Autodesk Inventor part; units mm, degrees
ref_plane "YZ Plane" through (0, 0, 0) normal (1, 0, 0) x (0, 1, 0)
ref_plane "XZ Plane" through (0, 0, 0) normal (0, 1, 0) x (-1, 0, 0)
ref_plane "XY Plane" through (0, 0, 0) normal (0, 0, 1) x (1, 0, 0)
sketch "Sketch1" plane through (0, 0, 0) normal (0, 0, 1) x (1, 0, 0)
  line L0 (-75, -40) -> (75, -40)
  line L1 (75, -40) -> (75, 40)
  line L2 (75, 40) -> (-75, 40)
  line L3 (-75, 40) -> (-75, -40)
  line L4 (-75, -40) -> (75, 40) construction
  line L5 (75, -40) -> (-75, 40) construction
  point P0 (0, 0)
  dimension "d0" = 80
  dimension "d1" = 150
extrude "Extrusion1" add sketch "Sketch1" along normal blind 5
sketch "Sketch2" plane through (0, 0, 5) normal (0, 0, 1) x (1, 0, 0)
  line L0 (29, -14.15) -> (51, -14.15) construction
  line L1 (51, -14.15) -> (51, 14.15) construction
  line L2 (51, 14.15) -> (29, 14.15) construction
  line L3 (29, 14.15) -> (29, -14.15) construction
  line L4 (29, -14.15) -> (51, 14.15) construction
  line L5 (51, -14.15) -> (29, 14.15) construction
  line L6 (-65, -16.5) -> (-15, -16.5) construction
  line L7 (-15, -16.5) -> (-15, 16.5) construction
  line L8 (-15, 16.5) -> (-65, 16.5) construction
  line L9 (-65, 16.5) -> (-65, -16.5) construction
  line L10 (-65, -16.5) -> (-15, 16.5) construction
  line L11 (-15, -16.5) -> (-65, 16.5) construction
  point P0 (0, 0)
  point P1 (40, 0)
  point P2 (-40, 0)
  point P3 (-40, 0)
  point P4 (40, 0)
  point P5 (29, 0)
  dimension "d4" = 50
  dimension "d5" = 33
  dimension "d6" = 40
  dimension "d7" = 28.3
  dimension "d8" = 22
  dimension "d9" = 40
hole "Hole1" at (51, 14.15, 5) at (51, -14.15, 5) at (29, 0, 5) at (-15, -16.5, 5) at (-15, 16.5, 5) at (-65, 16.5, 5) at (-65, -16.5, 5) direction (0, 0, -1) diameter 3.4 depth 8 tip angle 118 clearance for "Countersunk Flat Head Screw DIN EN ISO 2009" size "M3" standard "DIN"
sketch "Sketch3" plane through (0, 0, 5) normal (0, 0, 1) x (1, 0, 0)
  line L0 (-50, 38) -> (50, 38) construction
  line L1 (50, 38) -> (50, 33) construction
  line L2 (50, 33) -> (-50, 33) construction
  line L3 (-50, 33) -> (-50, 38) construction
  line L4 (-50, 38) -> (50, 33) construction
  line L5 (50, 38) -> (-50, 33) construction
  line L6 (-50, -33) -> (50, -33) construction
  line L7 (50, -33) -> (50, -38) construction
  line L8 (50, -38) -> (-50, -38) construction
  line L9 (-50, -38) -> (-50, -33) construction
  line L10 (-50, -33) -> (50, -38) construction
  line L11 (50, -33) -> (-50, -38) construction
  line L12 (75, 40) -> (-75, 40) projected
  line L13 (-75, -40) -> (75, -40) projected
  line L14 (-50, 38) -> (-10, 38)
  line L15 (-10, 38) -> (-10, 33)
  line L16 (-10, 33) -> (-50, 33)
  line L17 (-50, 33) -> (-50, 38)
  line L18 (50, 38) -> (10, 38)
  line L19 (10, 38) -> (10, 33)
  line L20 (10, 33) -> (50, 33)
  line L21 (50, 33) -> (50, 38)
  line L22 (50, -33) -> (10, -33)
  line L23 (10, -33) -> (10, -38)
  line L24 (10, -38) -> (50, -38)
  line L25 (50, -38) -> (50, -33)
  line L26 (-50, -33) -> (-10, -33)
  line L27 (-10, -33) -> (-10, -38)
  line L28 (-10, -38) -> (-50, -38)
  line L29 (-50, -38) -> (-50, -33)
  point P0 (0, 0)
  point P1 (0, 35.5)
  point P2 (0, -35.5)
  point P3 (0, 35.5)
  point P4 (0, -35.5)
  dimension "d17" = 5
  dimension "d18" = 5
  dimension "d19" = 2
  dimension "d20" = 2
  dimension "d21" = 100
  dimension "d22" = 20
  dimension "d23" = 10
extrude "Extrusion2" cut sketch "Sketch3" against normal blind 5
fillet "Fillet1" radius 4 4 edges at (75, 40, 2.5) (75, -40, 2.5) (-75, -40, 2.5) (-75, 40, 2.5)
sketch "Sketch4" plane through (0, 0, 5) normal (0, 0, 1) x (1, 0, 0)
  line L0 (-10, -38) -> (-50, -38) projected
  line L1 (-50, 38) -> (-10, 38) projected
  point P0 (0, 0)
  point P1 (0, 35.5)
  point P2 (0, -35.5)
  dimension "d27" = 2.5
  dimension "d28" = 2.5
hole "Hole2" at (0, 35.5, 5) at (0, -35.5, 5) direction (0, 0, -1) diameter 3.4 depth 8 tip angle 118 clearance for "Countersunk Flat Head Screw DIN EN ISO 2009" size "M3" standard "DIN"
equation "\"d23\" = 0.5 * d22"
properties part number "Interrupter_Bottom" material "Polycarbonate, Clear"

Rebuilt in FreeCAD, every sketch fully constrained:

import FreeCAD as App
import Part
import Sketcher
from FreeCAD import Vector
Q = App.Units.Quantity


def edges_at(feature, points):
    """Names of the edges that pass closest to the given points."""
    edges = feature.Shape.Edges
    near = lambda p: min(range(len(edges)), key=lambda i: edges[i].distToShape(Part.Vertex(*p))[0])
    return sorted({f"Edge{near(p) + 1}" for p in points})

doc = App.newDocument("Part")
params = doc.addObject("Spreadsheet::Sheet", "Params")
for row, (alias, value) in enumerate([
    ("sketch1_width", "150 mm"),
    ("sketch1_height", "80 mm"),
    ("pad1_length", "5 mm"),
    ("sketch2_diameter", "3.4 mm"),
    ("hole_diameter", "3.4 mm"),
    ("hole_depth", "8 mm"),
    ("sketch3_height", "5 mm"),
    ("pocket1_length", "5 mm"),
    ("fillet_radius", "4 mm"),
    ("sketch4_diameter", "3.4 mm"),
    ("hole2_diameter", "3.4 mm"),
    ("hole2_depth", "8 mm"),
], start=1):
    params.set(f"A{row}", alias)
    params.set(f"B{row}", "=" + value)
    params.setAlias(f"B{row}", alias)

body = doc.addObject("PartDesign::Body", "Body")

sketch1 = doc.addObject("Sketcher::SketchObject", "Sketch")
body.addObject(sketch1)
sketch1.AttachmentSupport = (doc.XY_Plane, [""])
sketch1.MapMode = "FlatFace"
sketch1.addGeometry(Part.LineSegment(Vector(-75, 40, 0), Vector(-75, -40, 0)), False)
sketch1.addGeometry(Part.LineSegment(Vector(-75, -40, 0), Vector(75, -40, 0)), False)
sketch1.addGeometry(Part.LineSegment(Vector(75, -40, 0), Vector(75, 40, 0)), False)
sketch1.addGeometry(Part.LineSegment(Vector(75, 40, 0), Vector(-75, 40, 0)), False)
sketch1.addConstraint(Sketcher.Constraint("Coincident", 0, 2, 1, 1))
sketch1.addConstraint(Sketcher.Constraint("Coincident", 1, 2, 2, 1))
sketch1.addConstraint(Sketcher.Constraint("Coincident", 2, 2, 3, 1))
sketch1.addConstraint(Sketcher.Constraint("Coincident", 3, 2, 0, 1))
sketch1.addConstraint(Sketcher.Constraint("Vertical", 0))
sketch1.addConstraint(Sketcher.Constraint("Horizontal", 1))
sketch1.addConstraint(Sketcher.Constraint("Vertical", 2))
sketch1.addConstraint(Sketcher.Constraint("Horizontal", 3))
sketch1.addConstraint(Sketcher.Constraint("Symmetric", 0, 2, 2, 2, -1, 1))
sketch1.addConstraint(Sketcher.Constraint("DistanceX", 1, 1, 1, 2, Q("150 mm")))
sketch1.addConstraint(Sketcher.Constraint("DistanceY", 0, 2, 0, 1, Q("80 mm")))
sketch1.setExpression("Constraints[9]", "Params.sketch1_width")
sketch1.setExpression("Constraints[10]", "Params.sketch1_height")
pad1 = doc.addObject("PartDesign::Pad", "Pad")
body.addObject(pad1)
pad1.Profile = sketch1
pad1.setExpression("Length", "Params.pad1_length")

sketch2 = doc.addObject("Sketcher::SketchObject", "Sketch001")
body.addObject(sketch2)
sketch2.AttachmentSupport = (doc.XY_Plane, [""])
sketch2.MapMode = "FlatFace"
sketch2.AttachmentOffset = App.Placement(Vector(0, 0, 5), App.Rotation())
sketch2.addGeometry(Part.Circle(Vector(51, 14.15, 0), Vector(0, 0, 1), 1.7), False)
sketch2.addGeometry(Part.Circle(Vector(51, -14.15, 0), Vector(0, 0, 1), 1.7), False)
sketch2.addGeometry(Part.Circle(Vector(29, 0, 0), Vector(0, 0, 1), 1.7), False)
sketch2.addGeometry(Part.Circle(Vector(-15, -16.5, 0), Vector(0, 0, 1), 1.7), False)
sketch2.addGeometry(Part.Circle(Vector(-15, 16.5, 0), Vector(0, 0, 1), 1.7), False)
sketch2.addGeometry(Part.Circle(Vector(-65, 16.5, 0), Vector(0, 0, 1), 1.7), False)
sketch2.addGeometry(Part.Circle(Vector(-65, -16.5, 0), Vector(0, 0, 1), 1.7), False)
sketch2.addConstraint(Sketcher.Constraint("Equal", 0, 1))
sketch2.addConstraint(Sketcher.Constraint("Equal", 1, 2))
sketch2.addConstraint(Sketcher.Constraint("Equal", 2, 3))
sketch2.addConstraint(Sketcher.Constraint("Equal", 3, 4))
sketch2.addConstraint(Sketcher.Constraint("Equal", 4, 5))
sketch2.addConstraint(Sketcher.Constraint("Equal", 5, 6))
sketch2.addConstraint(Sketcher.Constraint("Symmetric", 0, 3, 1, 3, -1))
sketch2.addConstraint(Sketcher.Constraint("Symmetric", 3, 3, 4, 3, -1))
sketch2.addConstraint(Sketcher.Constraint("Symmetric", 5, 3, 6, 3, -1))
sketch2.addConstraint(Sketcher.Constraint("PointOnObject", 2, 3, -1))
sketch2.addConstraint(Sketcher.Constraint("Horizontal", 4, 3, 5, 3))
sketch2.addConstraint(Sketcher.Constraint("Diameter", 0, Q("3.4 mm")))
sketch2.addConstraint(Sketcher.Constraint("DistanceX", -1, 1, 0, 3, Q("51 mm")))
sketch2.addConstraint(Sketcher.Constraint("DistanceX", -1, 1, 2, 3, Q("29 mm")))
sketch2.addConstraint(Sketcher.Constraint("DistanceX", 3, 3, -1, 1, Q("15 mm")))
sketch2.addConstraint(Sketcher.Constraint("DistanceX", 5, 3, -1, 1, Q("65 mm")))
sketch2.addConstraint(Sketcher.Constraint("DistanceY", 3, 3, 4, 3, Q("33 mm")))
sketch2.addConstraint(Sketcher.Constraint("DistanceY", 1, 3, 0, 3, Q("28.3 mm")))
sketch2.setExpression("Constraints[11]", "Params.sketch2_diameter")
doc.recompute()
hole = doc.addObject("PartDesign::Hole", "Hole")
body.addObject(hole)
hole.Profile = sketch2
hole.ThreadType = "None"
hole.setExpression("Diameter", "Params.hole_diameter")
hole.DepthType = "Dimension"
hole.setExpression("Depth", "Params.hole_depth")
hole.DrillPoint = "Angled"
hole.DrillPointAngle = 118

sketch3 = doc.addObject("Sketcher::SketchObject", "Sketch002")
body.addObject(sketch3)
sketch3.AttachmentSupport = (doc.XY_Plane, [""])
sketch3.MapMode = "FlatFace"
sketch3.AttachmentOffset = App.Placement(Vector(0, 0, 5), App.Rotation())
sketch3.addGeometry(Part.LineSegment(Vector(-10, 38, 0), Vector(-50, 38, 0)), False)
sketch3.addGeometry(Part.LineSegment(Vector(-50, 38, 0), Vector(-50, 33, 0)), False)
sketch3.addGeometry(Part.LineSegment(Vector(-50, 33, 0), Vector(-10, 33, 0)), False)
sketch3.addGeometry(Part.LineSegment(Vector(-10, 33, 0), Vector(-10, 38, 0)), False)
sketch3.addGeometry(Part.LineSegment(Vector(50, 33, 0), Vector(50, 38, 0)), False)
sketch3.addGeometry(Part.LineSegment(Vector(50, 38, 0), Vector(10, 38, 0)), False)
sketch3.addGeometry(Part.LineSegment(Vector(10, 38, 0), Vector(10, 33, 0)), False)
sketch3.addGeometry(Part.LineSegment(Vector(10, 33, 0), Vector(50, 33, 0)), False)
sketch3.addGeometry(Part.LineSegment(Vector(50, -38, 0), Vector(50, -33, 0)), False)
sketch3.addGeometry(Part.LineSegment(Vector(50, -33, 0), Vector(10, -33, 0)), False)
sketch3.addGeometry(Part.LineSegment(Vector(10, -33, 0), Vector(10, -38, 0)), False)
sketch3.addGeometry(Part.LineSegment(Vector(10, -38, 0), Vector(50, -38, 0)), False)
sketch3.addGeometry(Part.LineSegment(Vector(-10, -33, 0), Vector(-50, -33, 0)), False)
sketch3.addGeometry(Part.LineSegment(Vector(-50, -33, 0), Vector(-50, -38, 0)), False)
sketch3.addGeometry(Part.LineSegment(Vector(-50, -38, 0), Vector(-10, -38, 0)), False)
sketch3.addGeometry(Part.LineSegment(Vector(-10, -38, 0), Vector(-10, -33, 0)), False)
sketch3.addConstraint(Sketcher.Constraint("Coincident", 0, 2, 1, 1))
sketch3.addConstraint(Sketcher.Constraint("Coincident", 1, 2, 2, 1))
sketch3.addConstraint(Sketcher.Constraint("Coincident", 2, 2, 3, 1))
sketch3.addConstraint(Sketcher.Constraint("Coincident", 3, 2, 0, 1))
sketch3.addConstraint(Sketcher.Constraint("Coincident", 4, 2, 5, 1))
sketch3.addConstraint(Sketcher.Constraint("Coincident", 5, 2, 6, 1))
sketch3.addConstraint(Sketcher.Constraint("Coincident", 6, 2, 7, 1))
sketch3.addConstraint(Sketcher.Constraint("Coincident", 7, 2, 4, 1))
sketch3.addConstraint(Sketcher.Constraint("Coincident", 8, 2, 9, 1))
sketch3.addConstraint(Sketcher.Constraint("Coincident", 9, 2, 10, 1))
sketch3.addConstraint(Sketcher.Constraint("Coincident", 10, 2, 11, 1))
sketch3.addConstraint(Sketcher.Constraint("Coincident", 11, 2, 8, 1))
sketch3.addConstraint(Sketcher.Constraint("Coincident", 12, 2, 13, 1))
sketch3.addConstraint(Sketcher.Constraint("Coincident", 13, 2, 14, 1))
sketch3.addConstraint(Sketcher.Constraint("Coincident", 14, 2, 15, 1))
sketch3.addConstraint(Sketcher.Constraint("Coincident", 15, 2, 12, 1))
sketch3.addConstraint(Sketcher.Constraint("Horizontal", 0))
sketch3.addConstraint(Sketcher.Constraint("Vertical", 1))
sketch3.addConstraint(Sketcher.Constraint("Horizontal", 2))
sketch3.addConstraint(Sketcher.Constraint("Vertical", 3))
sketch3.addConstraint(Sketcher.Constraint("Vertical", 4))
sketch3.addConstraint(Sketcher.Constraint("Horizontal", 5))
sketch3.addConstraint(Sketcher.Constraint("Vertical", 6))
sketch3.addConstraint(Sketcher.Constraint("Horizontal", 7))
sketch3.addConstraint(Sketcher.Constraint("Vertical", 8))
sketch3.addConstraint(Sketcher.Constraint("Horizontal", 9))
sketch3.addConstraint(Sketcher.Constraint("Vertical", 10))
sketch3.addConstraint(Sketcher.Constraint("Horizontal", 11))
sketch3.addConstraint(Sketcher.Constraint("Horizontal", 12))
sketch3.addConstraint(Sketcher.Constraint("Vertical", 13))
sketch3.addConstraint(Sketcher.Constraint("Horizontal", 14))
sketch3.addConstraint(Sketcher.Constraint("Vertical", 15))
sketch3.addConstraint(Sketcher.Constraint("Symmetric", 1, 2, 8, 2, -1, 1))
sketch3.addConstraint(Sketcher.Constraint("Symmetric", 3, 2, 10, 2, -1, 1))
sketch3.addConstraint(Sketcher.Constraint("Symmetric", 7, 2, 12, 2, -1, 1))
sketch3.addConstraint(Sketcher.Constraint("Symmetric", 5, 2, 14, 2, -1, 1))
sketch3.addConstraint(Sketcher.Constraint("Symmetric", 0, 2, 4, 2, -2))
sketch3.addConstraint(Sketcher.Constraint("Symmetric", 2, 2, 6, 2, -2))
sketch3.addConstraint(Sketcher.Constraint("DistanceY", 1, 2, 1, 1, Q("5 mm")))
sketch3.addConstraint(Sketcher.Constraint("DistanceX", 2, 2, -1, 1, Q("10 mm")))
sketch3.addConstraint(Sketcher.Constraint("DistanceX", 0, 2, 4, 2, Q("100 mm")))
sketch3.addConstraint(Sketcher.Constraint("DistanceY", -1, 1, 0, 2, Q("38 mm")))
sketch3.setExpression("Constraints[38]", "Params.sketch3_height")
pocket1 = doc.addObject("PartDesign::Pocket", "Pocket")
body.addObject(pocket1)
pocket1.Profile = sketch3
pocket1.setExpression("Length", "Params.pocket1_length")
doc.recompute()

fillet = doc.addObject("PartDesign::Fillet", "Fillet")
body.addObject(fillet)
fillet.Base = (pocket1, edges_at(pocket1, [
    (75, 40, 2.5),
    (75, -40, 2.5),
    (-75, -40, 2.5),
    (-75, 40, 2.5),
]))
fillet.setExpression("Radius", "Params.fillet_radius")

sketch4 = doc.addObject("Sketcher::SketchObject", "Sketch003")
body.addObject(sketch4)
sketch4.AttachmentSupport = (doc.XY_Plane, [""])
sketch4.MapMode = "FlatFace"
sketch4.AttachmentOffset = App.Placement(Vector(0, 0, 5), App.Rotation())
sketch4.addGeometry(Part.Circle(Vector(0, 35.5, 0), Vector(0, 0, 1), 1.7), False)
sketch4.addGeometry(Part.Circle(Vector(0, -35.5, 0), Vector(0, 0, 1), 1.7), False)
sketch4.addConstraint(Sketcher.Constraint("Equal", 0, 1))
sketch4.addConstraint(Sketcher.Constraint("Symmetric", 0, 3, 1, 3, -1, 1))
sketch4.addConstraint(Sketcher.Constraint("PointOnObject", 0, 3, -2))
sketch4.addConstraint(Sketcher.Constraint("Diameter", 0, Q("3.4 mm")))
sketch4.addConstraint(Sketcher.Constraint("DistanceY", 1, 3, 0, 3, Q("71 mm")))
sketch4.setExpression("Constraints[3]", "Params.sketch4_diameter")
doc.recompute()
hole2 = doc.addObject("PartDesign::Hole", "Hole001")
body.addObject(hole2)
hole2.Profile = sketch4
hole2.ThreadType = "None"
hole2.setExpression("Diameter", "Params.hole2_diameter")
hole2.DepthType = "Dimension"
hole2.setExpression("Depth", "Params.hole2_depth")
hole2.DrillPoint = "Angled"
hole2.DrillPointAngle = 118

doc.recompute()
